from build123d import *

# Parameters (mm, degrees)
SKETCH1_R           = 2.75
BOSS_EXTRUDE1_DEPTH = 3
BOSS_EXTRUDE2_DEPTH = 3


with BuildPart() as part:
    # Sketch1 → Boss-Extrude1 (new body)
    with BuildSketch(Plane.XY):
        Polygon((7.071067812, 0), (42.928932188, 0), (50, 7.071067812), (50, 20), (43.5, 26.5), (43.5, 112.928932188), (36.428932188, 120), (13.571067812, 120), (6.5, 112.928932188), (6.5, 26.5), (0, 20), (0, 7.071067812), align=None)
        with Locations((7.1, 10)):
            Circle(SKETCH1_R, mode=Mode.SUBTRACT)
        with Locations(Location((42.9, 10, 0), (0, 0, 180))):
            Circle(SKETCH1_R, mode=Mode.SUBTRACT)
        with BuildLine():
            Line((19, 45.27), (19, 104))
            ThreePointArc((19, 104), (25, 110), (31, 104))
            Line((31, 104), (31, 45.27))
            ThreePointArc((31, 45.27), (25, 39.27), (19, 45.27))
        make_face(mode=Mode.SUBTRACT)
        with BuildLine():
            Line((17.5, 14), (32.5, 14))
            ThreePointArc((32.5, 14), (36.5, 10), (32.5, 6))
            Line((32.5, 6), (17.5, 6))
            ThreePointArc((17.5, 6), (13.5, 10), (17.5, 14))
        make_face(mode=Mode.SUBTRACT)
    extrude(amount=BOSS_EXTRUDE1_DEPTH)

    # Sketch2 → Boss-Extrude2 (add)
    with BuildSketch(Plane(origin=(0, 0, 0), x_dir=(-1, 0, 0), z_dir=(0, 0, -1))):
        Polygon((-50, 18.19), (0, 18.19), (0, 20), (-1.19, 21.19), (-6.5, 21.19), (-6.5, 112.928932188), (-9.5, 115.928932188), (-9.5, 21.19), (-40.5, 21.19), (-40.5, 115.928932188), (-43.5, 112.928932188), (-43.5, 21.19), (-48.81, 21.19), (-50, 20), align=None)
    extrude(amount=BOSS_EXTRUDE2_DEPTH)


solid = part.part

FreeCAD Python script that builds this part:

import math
import FreeCAD as App
import Part
import Sketcher
Q = App.Units.Quantity


def add_polygon(sketch, points):
    """Adds a closed chain of lines whose ends are joined by coincident constraints."""
    first, n = sketch.GeometryCount, len(points)
    for a, b in zip(points, points[1:] + points[:1]):
        sketch.addGeometry(Part.LineSegment(App.Vector(*a, 0), App.Vector(*b, 0)), False)
    for i in range(n):
        sketch.addConstraint(Sketcher.Constraint("Coincident", first + i, 2, first + (i + 1) % n, 1))

doc = App.newDocument("Part")
params = doc.addObject("Spreadsheet::Sheet", "Params")
for row, (alias, value) in enumerate([
    ("sketch1_radius", "4 mm"),
    ("sketch1_radius2", "6 mm"),
    ("sketch1_diameter", "5.5 mm"),
    ("sketch1_width", "15 mm"),
    ("sketch1_length", "10 mm"),
    ("pad1_length", "3 mm"),
    ("sketch2_width", "50 mm"),
    ("sketch2_width2", "31 mm"),
    ("sketch2_width3", "5.31 mm"),
    ("pad2_length", "3 mm"),
], start=1):
    params.set(f"A{row}", alias)
    params.set(f"B{row}", "=" + value)
    params.setAlias(f"B{row}", alias)

body = doc.addObject("PartDesign::Body", "Body")

# Sketch on XY plane
sketch1 = body.newObject("Sketcher::SketchObject", "Sketch")
sketch1.AttachmentSupport = (doc.getObject("XY_Plane"), [""])
sketch1.MapMode = "FlatFace"
add_polygon(sketch1, [(7.1, 0), (42.9, 0), (50, 7.1), (50, 20), (43.5, 26.5), (43.5, 112.9), (36.4, 120), (13.6, 120), (6.5, 112.9), (6.5, 26.5), (0, 20), (0, 7.1)])  # lines 0-11
sketch1.addGeometry(Part.Circle(App.Vector(7.1, 10, 0), App.Vector(0, 0, 1), 2.8), False)  # 12
sketch1.addGeometry(Part.ArcOfCircle(Part.Circle(App.Vector(17.5, 10, 0), App.Vector(0, 0, 1), 4), math.radians(90), math.radians(270)), False)  # 13
sketch1.addGeometry(Part.LineSegment(App.Vector(17.5, 14, 0), App.Vector(32.5, 14, 0)), False)  # 14
sketch1.addGeometry(Part.ArcOfCircle(Part.Circle(App.Vector(32.5, 10, 0), App.Vector(0, 0, 1), 4), math.radians(-90), math.radians(90)), False)  # 15
sketch1.addGeometry(Part.LineSegment(App.Vector(32.5, 6, 0), App.Vector(17.5, 6, 0)), False)  # 16
sketch1.addGeometry(Part.Circle(App.Vector(42.9, 10, 0), App.Vector(0, 0, 1), 2.8), False)  # 17
sketch1.addGeometry(Part.ArcOfCircle(Part.Circle(App.Vector(25, 45.3, 0), App.Vector(0, 0, 1), 6), math.radians(180), math.radians(360)), False)  # 18
sketch1.addGeometry(Part.LineSegment(App.Vector(19, 45.3, 0), App.Vector(19, 104, 0)), False)  # 19
sketch1.addGeometry(Part.ArcOfCircle(Part.Circle(App.Vector(25, 104, 0), App.Vector(0, 0, 1), 6), math.radians(0), math.radians(180)), False)  # 20
sketch1.addGeometry(Part.LineSegment(App.Vector(31, 104, 0), App.Vector(31, 45.3, 0)), False)  # 21
sketch1.addConstraint(Sketcher.Constraint("Tangent", 13, 1, 14, 1))
sketch1.addConstraint(Sketcher.Constraint("Tangent", 14, 2, 15, 2))
sketch1.addConstraint(Sketcher.Constraint("Tangent", 15, 1, 16, 1))
sketch1.addConstraint(Sketcher.Constraint("Tangent", 16, 2, 13, 2))
sketch1.addConstraint(Sketcher.Constraint("Tangent", 18, 1, 19, 1))
sketch1.addConstraint(Sketcher.Constraint("Tangent", 19, 2, 20, 2))
sketch1.addConstraint(Sketcher.Constraint("Tangent", 20, 1, 21, 1))
sketch1.addConstraint(Sketcher.Constraint("Tangent", 21, 2, 18, 2))
sketch1.addConstraint(Sketcher.Constraint("Horizontal", 0))
sketch1.addConstraint(Sketcher.Constraint("Vertical", 2))
sketch1.addConstraint(Sketcher.Constraint("Vertical", 4))
sketch1.addConstraint(Sketcher.Constraint("Horizontal", 6))
sketch1.addConstraint(Sketcher.Constraint("Vertical", 8))
sketch1.addConstraint(Sketcher.Constraint("Vertical", 10))
sketch1.addConstraint(Sketcher.Constraint("Horizontal", 14))
sketch1.addConstraint(Sketcher.Constraint("Horizontal", 16))
sketch1.addConstraint(Sketcher.Constraint("Vertical", 19))
sketch1.addConstraint(Sketcher.Constraint("Vertical", 21))
sketch1.addConstraint(Sketcher.Constraint("Equal", 12, 17))
sketch1.addConstraint(Sketcher.Constraint("PointOnObject", 0, 2, -1))
sketch1.addConstraint(Sketcher.Constraint("PointOnObject", 9, 2, -2))
sketch1.addConstraint(Sketcher.Constraint("Perpendicular", 1, 3))
sketch1.addConstraint(Sketcher.Constraint("Parallel", 3, 5))
sketch1.addConstraint(Sketcher.Constraint("Perpendicular", 5, 7))
sketch1.addConstraint(Sketcher.Constraint("Parallel", 7, 9))
sketch1.addConstraint(Sketcher.Constraint("Perpendicular", 9, 11))
sketch1.addConstraint(Sketcher.Constraint("Horizontal", 12, 3, 13, 3))
sketch1.addConstraint(Sketcher.Constraint("Horizontal", 15, 3, 17, 3))
sketch1.addConstraint(Sketcher.Constraint("Horizontal", 4, 2, 7, 2))
sketch1.addConstraint(Sketcher.Constraint("Horizontal", 3, 2, 8, 2))
sketch1.addConstraint(Sketcher.Constraint("Horizontal", 2, 2, 9, 2))
sketch1.addConstraint(Sketcher.Constraint("Horizontal", 1, 2, 10, 2))
sketch1.addConstraint(Sketcher.Constraint("Equal", 1, 5))
sketch1.addConstraint(Sketcher.Constraint("Equal", 5, 7))
sketch1.addConstraint(Sketcher.Constraint("Radius", 13, Q("4 mm")))
sketch1.addConstraint(Sketcher.Constraint("Radius", 18, Q("6 mm")))
sketch1.addConstraint(Sketcher.Constraint("Diameter", 12, Q("5.5 mm")))
sketch1.addConstraint(Sketcher.Constraint("DistanceX", 14, 1, 14, 2, Q("15 mm")))
sketch1.addConstraint(Sketcher.Constraint("Distance", 1, Q("10 mm")))
sketch1.addConstraint(Sketcher.Constraint("DistanceY", -1, 1, 12, 3, Q("10 mm")))
sketch1.addConstraint(Sketcher.Constraint("DistanceX", -1, 1, 18, 3, Q("25 mm")))
sketch1.addConstraint(Sketcher.Constraint("DistanceY", -1, 1, 20, 3, Q("104 mm")))
sketch1.addConstraint(Sketcher.Constraint("DistanceX", -1, 1, 1, 2, Q("50 mm")))
sketch1.addConstraint(Sketcher.Constraint("DistanceY", -1, 1, 2, 2, Q("20 mm")))
sketch1.addConstraint(Sketcher.Constraint("DistanceY", -1, 1, 5, 2, Q("120 mm")))
sketch1.addConstraint(Sketcher.Constraint("DistanceX", 15, 3, 3, 2, Q("11 mm")))
sketch1.addConstraint(Sketcher.Constraint("DistanceX", 7, 2, 4, 2, Q("37 mm")))
sketch1.addConstraint(Sketcher.Constraint("DistanceY", 19, 1, 19, 2, Q("58.73 mm")))
sketch1.addConstraint(Sketcher.Constraint("DistanceX", -1, 1, 12, 3, Q("7.1 mm")))
sketch1.addConstraint(Sketcher.Constraint("DistanceX", -1, 1, 17, 3, Q("42.9 mm")))
sketch1.setExpression("Constraints[46]", "Params.sketch1_radius")
sketch1.setExpression("Constraints[47]", "Params.sketch1_radius2")
sketch1.setExpression("Constraints[48]", "Params.sketch1_diameter")
sketch1.setExpression("Constraints[49]", "Params.sketch1_width")
sketch1.setExpression("Constraints[50]", "Params.sketch1_length")
pad1 = body.newObject("PartDesign::Pad", "Pad")
pad1.Profile = sketch1
pad1.setExpression("Length", "Params.pad1_length")

# Sketch on XY plane
sketch2 = body.newObject("Sketcher::SketchObject", "Sketch001")
sketch2.AttachmentSupport = (doc.getObject("XY_Plane"), [""])
sketch2.MapMode = "FlatFace"
add_polygon(sketch2, [(50, 18.2), (0, 18.2), (0, 20), (1.2, 21.2), (6.5, 21.2), (6.5, 112.9), (9.5, 115.9), (9.5, 21.2), (40.5, 21.2), (40.5, 115.9), (43.5, 112.9), (43.5, 21.2), (48.8, 21.2), (50, 20)])  # lines 0-13
sketch2.addConstraint(Sketcher.Constraint("Horizontal", 0))
sketch2.addConstraint(Sketcher.Constraint("Vertical", 1))
sketch2.addConstraint(Sketcher.Constraint("Horizontal", 3))
sketch2.addConstraint(Sketcher.Constraint("Vertical", 4))
sketch2.addConstraint(Sketcher.Constraint("Vertical", 6))
sketch2.addConstraint(Sketcher.Constraint("Horizontal", 7))
sketch2.addConstraint(Sketcher.Constraint("Vertical", 8))
sketch2.addConstraint(Sketcher.Constraint("Vertical", 10))
sketch2.addConstraint(Sketcher.Constraint("Horizontal", 11))
sketch2.addConstraint(Sketcher.Constraint("Vertical", 13))
sketch2.addConstraint(Sketcher.Constraint("PointOnObject", 0, 2, -2))
sketch2.addConstraint(Sketcher.Constraint("Parallel", 2, 5))
sketch2.addConstraint(Sketcher.Constraint("Perpendicular", 5, 9))
sketch2.addConstraint(Sketcher.Constraint("Parallel", 9, 12))
sketch2.addConstraint(Sketcher.Constraint("Horizontal", 3, 2, 6, 2))
sketch2.addConstraint(Sketcher.Constraint("Horizontal", 5, 2, 8, 2))
sketch2.addConstraint(Sketcher.Constraint("Horizontal", 4, 2, 9, 2))
sketch2.addConstraint(Sketcher.Constraint("Horizontal", 7, 2, 10, 2))
sketch2.addConstraint(Sketcher.Constraint("Horizontal", 1, 2, 12, 2))
sketch2.addConstraint(Sketcher.Constraint("Equal", 3, 11))
sketch2.addConstraint(Sketcher.Constraint("Equal", 5, 9))
sketch2.addConstraint(Sketcher.Constraint("DistanceX", 0, 2, 0, 1, Q("50 mm")))
sketch2.addConstraint(Sketcher.Constraint("DistanceX", 7, 1, 7, 2, Q("31 mm")))
sketch2.addConstraint(Sketcher.Constraint("DistanceY", -1, 1, 1, 2, Q("20 mm")))
sketch2.addConstraint(Sketcher.Constraint("DistanceY", 0, 2, 2, 2, Q("3 mm")))
sketch2.addConstraint(Sketcher.Constraint("DistanceX", 4, 2, 5, 2, Q("3 mm")))
sketch2.addConstraint(Sketcher.Constraint("DistanceX", 3, 1, 3, 2, Q("5.31 mm")))
sketch2.addConstraint(Sketcher.Constraint("DistanceY", 4, 1, 4, 2, Q("91.738932 mm")))
sketch2.setExpression("Constraints[35]", "Params.sketch2_width")
sketch2.setExpression("Constraints[36]", "Params.sketch2_width2")
sketch2.setExpression("Constraints[40]", "Params.sketch2_width3")
pad2 = body.newObject("PartDesign::Pad", "Pad001")
pad2.Profile = sketch2
pad2.setExpression("Length", "Params.pad2_length")
pad2.Reversed = True

doc.recompute()
